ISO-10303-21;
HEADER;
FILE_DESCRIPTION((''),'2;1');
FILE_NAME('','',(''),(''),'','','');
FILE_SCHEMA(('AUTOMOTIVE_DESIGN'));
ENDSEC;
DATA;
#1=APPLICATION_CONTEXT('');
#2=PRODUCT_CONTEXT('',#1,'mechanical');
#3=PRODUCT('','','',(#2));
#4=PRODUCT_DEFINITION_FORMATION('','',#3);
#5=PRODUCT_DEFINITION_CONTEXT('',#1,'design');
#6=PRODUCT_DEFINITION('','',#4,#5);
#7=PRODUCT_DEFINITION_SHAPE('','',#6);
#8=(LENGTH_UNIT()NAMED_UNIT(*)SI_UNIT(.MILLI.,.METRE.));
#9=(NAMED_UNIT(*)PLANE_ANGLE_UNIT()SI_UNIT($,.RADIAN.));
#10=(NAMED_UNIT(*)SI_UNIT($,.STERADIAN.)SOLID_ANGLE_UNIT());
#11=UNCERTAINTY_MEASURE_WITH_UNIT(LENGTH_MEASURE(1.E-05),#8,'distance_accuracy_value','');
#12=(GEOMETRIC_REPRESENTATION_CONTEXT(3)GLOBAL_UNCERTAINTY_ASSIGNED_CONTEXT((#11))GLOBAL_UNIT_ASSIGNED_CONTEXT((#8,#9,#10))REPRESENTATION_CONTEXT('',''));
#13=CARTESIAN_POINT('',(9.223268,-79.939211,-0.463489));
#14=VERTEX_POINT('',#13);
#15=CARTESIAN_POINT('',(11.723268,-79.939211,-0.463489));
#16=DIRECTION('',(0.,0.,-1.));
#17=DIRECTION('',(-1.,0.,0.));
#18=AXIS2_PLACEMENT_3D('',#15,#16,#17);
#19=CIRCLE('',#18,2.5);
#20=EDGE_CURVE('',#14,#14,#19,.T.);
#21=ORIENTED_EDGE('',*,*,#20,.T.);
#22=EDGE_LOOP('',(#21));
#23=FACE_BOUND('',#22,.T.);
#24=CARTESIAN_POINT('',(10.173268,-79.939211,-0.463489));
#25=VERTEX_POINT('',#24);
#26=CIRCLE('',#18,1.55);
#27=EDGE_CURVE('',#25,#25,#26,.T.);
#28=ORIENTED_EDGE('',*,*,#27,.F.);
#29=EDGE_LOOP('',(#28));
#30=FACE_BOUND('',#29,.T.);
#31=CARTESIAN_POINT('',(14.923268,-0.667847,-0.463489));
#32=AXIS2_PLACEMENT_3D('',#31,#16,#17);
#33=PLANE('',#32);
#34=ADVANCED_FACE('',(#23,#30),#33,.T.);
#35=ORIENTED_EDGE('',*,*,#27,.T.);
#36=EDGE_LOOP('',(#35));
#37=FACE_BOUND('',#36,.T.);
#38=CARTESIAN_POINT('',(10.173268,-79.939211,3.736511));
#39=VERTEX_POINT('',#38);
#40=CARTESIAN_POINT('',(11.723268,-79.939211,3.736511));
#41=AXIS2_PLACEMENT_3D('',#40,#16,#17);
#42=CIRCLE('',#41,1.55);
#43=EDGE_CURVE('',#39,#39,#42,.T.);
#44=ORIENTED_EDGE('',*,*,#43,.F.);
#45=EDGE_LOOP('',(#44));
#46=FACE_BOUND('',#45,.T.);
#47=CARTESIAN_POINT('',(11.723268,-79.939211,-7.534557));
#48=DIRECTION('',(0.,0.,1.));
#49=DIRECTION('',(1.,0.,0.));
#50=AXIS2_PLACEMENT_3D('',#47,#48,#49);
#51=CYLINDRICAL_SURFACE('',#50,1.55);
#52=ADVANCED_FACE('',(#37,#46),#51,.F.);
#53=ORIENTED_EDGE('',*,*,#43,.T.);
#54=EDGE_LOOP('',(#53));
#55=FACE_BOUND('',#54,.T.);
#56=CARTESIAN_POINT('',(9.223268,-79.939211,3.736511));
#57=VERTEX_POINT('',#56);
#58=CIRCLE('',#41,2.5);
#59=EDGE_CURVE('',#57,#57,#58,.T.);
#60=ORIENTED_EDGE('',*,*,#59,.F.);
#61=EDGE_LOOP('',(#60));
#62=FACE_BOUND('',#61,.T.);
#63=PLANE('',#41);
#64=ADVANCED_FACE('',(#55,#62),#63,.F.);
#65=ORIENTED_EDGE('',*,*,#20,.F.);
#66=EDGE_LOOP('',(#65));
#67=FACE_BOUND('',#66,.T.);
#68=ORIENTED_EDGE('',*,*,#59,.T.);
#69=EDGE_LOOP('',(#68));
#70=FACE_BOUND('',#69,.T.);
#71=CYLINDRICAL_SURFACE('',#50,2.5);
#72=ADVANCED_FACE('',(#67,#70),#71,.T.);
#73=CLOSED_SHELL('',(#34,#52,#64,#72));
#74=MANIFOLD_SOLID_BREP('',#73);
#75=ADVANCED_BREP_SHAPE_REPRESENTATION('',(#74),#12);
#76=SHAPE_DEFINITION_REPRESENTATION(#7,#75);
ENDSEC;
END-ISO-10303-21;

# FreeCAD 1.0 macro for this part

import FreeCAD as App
import Part
import Sketcher

doc = App.newDocument("Part")
params = doc.addObject("Spreadsheet::Sheet", "Params")
for row, (alias, value) in enumerate([
    ("sketch1_diameter", "5 mm"),
    ("sketch1_diameter2", "3.1 mm"),
    ("pad1_length", "4.2 mm"),
], start=1):
    params.set(f"A{row}", alias)
    params.set(f"B{row}", "=" + value)
    params.setAlias(f"B{row}", alias)

body = doc.addObject("PartDesign::Body", "Body")

# Sketch on XY plane
sketch1 = doc.addObject("Sketcher::SketchObject", "Sketch")
body.addObject(sketch1)
sketch1.AttachmentSupport = (doc.XY_Plane, [""])
sketch1.MapMode = "FlatFace"
sketch1.AttachmentOffset = App.Placement(App.Vector(0, 0, 3.736511), App.Rotation())
sketch1.addGeometry([
    Part.Circle(App.Vector(11.7, -79.9, 0), App.Vector(0, 0, 1), 2.5),
    Part.Circle(App.Vector(11.7, -79.9, 0), App.Vector(0, 0, 1), 1.6),
], False)
sketch1.addConstraint([
    Sketcher.Constraint("Coincident", 1, 3, 0, 3),
    Sketcher.Constraint("Diameter", 0, 5.0),
    Sketcher.Constraint("Diameter", 1, 3.1),
    Sketcher.Constraint("DistanceX", -1, 1, 0, 3, 11.723268),
    Sketcher.Constraint("DistanceY", 0, 3, -1, 1, 79.939211),
])
sketch1.setExpression("Constraints[1]", "Params.sketch1_diameter")
sketch1.setExpression("Constraints[2]", "Params.sketch1_diameter2")
pad1 = doc.addObject("PartDesign::Pad", "Pad")
body.addObject(pad1)
pad1.Profile = sketch1
pad1.setExpression("Length", "Params.pad1_length")
pad1.Reversed = True

doc.recompute()
